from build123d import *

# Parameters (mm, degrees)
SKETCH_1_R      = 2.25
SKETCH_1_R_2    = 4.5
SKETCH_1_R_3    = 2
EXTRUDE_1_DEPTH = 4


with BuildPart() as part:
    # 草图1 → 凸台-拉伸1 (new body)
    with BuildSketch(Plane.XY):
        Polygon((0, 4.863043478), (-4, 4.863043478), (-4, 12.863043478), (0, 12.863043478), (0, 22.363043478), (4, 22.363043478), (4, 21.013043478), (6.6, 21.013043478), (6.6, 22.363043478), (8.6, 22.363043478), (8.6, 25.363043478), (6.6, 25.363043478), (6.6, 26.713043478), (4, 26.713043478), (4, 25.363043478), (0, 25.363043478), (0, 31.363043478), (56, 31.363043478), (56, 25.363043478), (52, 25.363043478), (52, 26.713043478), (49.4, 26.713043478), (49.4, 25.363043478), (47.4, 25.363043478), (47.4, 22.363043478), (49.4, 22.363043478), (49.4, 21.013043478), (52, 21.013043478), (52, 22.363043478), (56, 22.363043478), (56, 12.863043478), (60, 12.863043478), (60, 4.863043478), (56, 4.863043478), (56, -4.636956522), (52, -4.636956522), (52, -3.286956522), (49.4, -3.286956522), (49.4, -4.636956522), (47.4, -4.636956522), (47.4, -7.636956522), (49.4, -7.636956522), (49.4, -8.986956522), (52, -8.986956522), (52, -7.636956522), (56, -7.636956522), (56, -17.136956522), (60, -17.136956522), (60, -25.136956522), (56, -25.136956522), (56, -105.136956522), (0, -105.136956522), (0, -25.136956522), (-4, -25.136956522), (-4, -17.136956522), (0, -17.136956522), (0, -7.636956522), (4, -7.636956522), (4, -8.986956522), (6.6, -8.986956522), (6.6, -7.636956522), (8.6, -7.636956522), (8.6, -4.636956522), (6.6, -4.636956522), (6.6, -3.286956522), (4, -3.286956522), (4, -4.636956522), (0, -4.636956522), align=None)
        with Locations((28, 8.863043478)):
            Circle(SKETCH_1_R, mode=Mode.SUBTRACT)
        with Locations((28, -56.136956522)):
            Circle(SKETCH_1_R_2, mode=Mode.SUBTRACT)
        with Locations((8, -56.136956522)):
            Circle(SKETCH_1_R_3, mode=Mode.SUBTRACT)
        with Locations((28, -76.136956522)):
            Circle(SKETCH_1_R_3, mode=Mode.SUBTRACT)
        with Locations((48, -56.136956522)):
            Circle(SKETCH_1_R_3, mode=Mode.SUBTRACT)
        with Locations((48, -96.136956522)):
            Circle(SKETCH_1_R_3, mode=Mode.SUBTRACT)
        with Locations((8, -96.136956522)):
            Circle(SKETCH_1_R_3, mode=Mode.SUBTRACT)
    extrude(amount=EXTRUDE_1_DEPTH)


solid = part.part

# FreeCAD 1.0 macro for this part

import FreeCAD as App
import Part
import Sketcher

V = App.Vector
Q = App.Units.Quantity

doc = App.newDocument("Part")
body = doc.addObject("PartDesign::Body", "Body")

# Sketch on XY plane
sketch1 = body.newObject("Sketcher::SketchObject", "Sketch")
sketch1.AttachmentSupport = (doc.getObject("XY_Plane"), [""])
sketch1.MapMode = "FlatFace"
sketch1.addGeometry(Part.LineSegment(V(-4, 4.863043, 0), V(0, 4.863043, 0)), False)
sketch1.addGeometry(Part.LineSegment(V(0, 4.863043, 0), V(0, -4.636957, 0)), False)
sketch1.addGeometry(Part.LineSegment(V(0, -4.636957, 0), V(4, -4.636957, 0)), False)
sketch1.addGeometry(Part.LineSegment(V(4, -4.636957, 0), V(4, -3.286957, 0)), False)
sketch1.addGeometry(Part.LineSegment(V(4, -3.286957, 0), V(6.6, -3.286957, 0)), False)
sketch1.addGeometry(Part.LineSegment(V(6.6, -3.286957, 0), V(6.6, -4.636957, 0)), False)
sketch1.addGeometry(Part.LineSegment(V(6.6, -4.636957, 0), V(8.6, -4.636957, 0)), False)
sketch1.addGeometry(Part.LineSegment(V(8.6, -4.636957, 0), V(8.6, -7.636957, 0)), False)
sketch1.addGeometry(Part.LineSegment(V(8.6, -7.636957, 0), V(6.6, -7.636957, 0)), False)
sketch1.addGeometry(Part.LineSegment(V(6.6, -7.636957, 0), V(6.6, -8.986957, 0)), False)
sketch1.addGeometry(Part.LineSegment(V(6.6, -8.986957, 0), V(4, -8.986957, 0)), False)
sketch1.addGeometry(Part.LineSegment(V(4, -8.986957, 0), V(4, -7.636957, 0)), False)
sketch1.addGeometry(Part.LineSegment(V(4, -7.636957, 0), V(0, -7.636957, 0)), False)
sketch1.addGeometry(Part.LineSegment(V(0, -7.636957, 0), V(0, -17.136957, 0)), False)
sketch1.addGeometry(Part.LineSegment(V(0, -17.136957, 0), V(-4, -17.136957, 0)), False)
sketch1.addGeometry(Part.LineSegment(V(-4, -17.136957, 0), V(-4, -25.136957, 0)), False)
sketch1.addGeometry(Part.LineSegment(V(-4, -25.136957, 0), V(0, -25.136957, 0)), False)
sketch1.addGeometry(Part.LineSegment(V(0, -25.136957, 0), V(0, -105.136957, 0)), False)
sketch1.addGeometry(Part.LineSegment(V(0, -105.136957, 0), V(56, -105.136957, 0)), False)
sketch1.addGeometry(Part.LineSegment(V(56, -105.136957, 0), V(56, -25.136957, 0)), False)
sketch1.addGeometry(Part.LineSegment(V(56, -25.136957, 0), V(60, -25.136957, 0)), False)
sketch1.addGeometry(Part.LineSegment(V(60, -25.136957, 0), V(60, -17.136957, 0)), False)
sketch1.addGeometry(Part.LineSegment(V(60, -17.136957, 0), V(56, -17.136957, 0)), False)
sketch1.addGeometry(Part.LineSegment(V(56, -17.136957, 0), V(56, -7.636957, 0)), False)
sketch1.addGeometry(Part.LineSegment(V(56, -7.636957, 0), V(52, -7.636957, 0)), False)
sketch1.addGeometry(Part.LineSegment(V(52, -7.636957, 0), V(52, -8.986957, 0)), False)
sketch1.addGeometry(Part.LineSegment(V(52, -8.986957, 0), V(49.4, -8.986957, 0)), False)
sketch1.addGeometry(Part.LineSegment(V(49.4, -8.986957, 0), V(49.4, -7.636957, 0)), False)
sketch1.addGeometry(Part.LineSegment(V(49.4, -7.636957, 0), V(47.4, -7.636957, 0)), False)
sketch1.addGeometry(Part.LineSegment(V(47.4, -7.636957, 0), V(47.4, -4.636957, 0)), False)
sketch1.addGeometry(Part.LineSegment(V(47.4, -4.636957, 0), V(49.4, -4.636957, 0)), False)
sketch1.addGeometry(Part.LineSegment(V(49.4, -4.636957, 0), V(49.4, -3.286957, 0)), False)
sketch1.addGeometry(Part.LineSegment(V(49.4, -3.286957, 0), V(52, -3.286957, 0)), False)
sketch1.addGeometry(Part.LineSegment(V(52, -3.286957, 0), V(52, -4.636957, 0)), False)
sketch1.addGeometry(Part.LineSegment(V(52, -4.636957, 0), V(56, -4.636957, 0)), False)
sketch1.addGeometry(Part.LineSegment(V(56, -4.636957, 0), V(56, 4.863043, 0)), False)
sketch1.addGeometry(Part.LineSegment(V(56, 4.863043, 0), V(60, 4.863043, 0)), False)
sketch1.addGeometry(Part.LineSegment(V(60, 4.863043, 0), V(60, 12.863043, 0)), False)
sketch1.addGeometry(Part.LineSegment(V(60, 12.863043, 0), V(56, 12.863043, 0)), False)
sketch1.addGeometry(Part.LineSegment(V(56, 12.863043, 0), V(56, 22.363043, 0)), False)
sketch1.addGeometry(Part.LineSegment(V(56, 22.363043, 0), V(52, 22.363043, 0)), False)
sketch1.addGeometry(Part.LineSegment(V(52, 22.363043, 0), V(52, 21.013043, 0)), False)
sketch1.addGeometry(Part.LineSegment(V(52, 21.013043, 0), V(49.4, 21.013043, 0)), False)
sketch1.addGeometry(Part.LineSegment(V(49.4, 21.013043, 0), V(49.4, 22.363043, 0)), False)
sketch1.addGeometry(Part.LineSegment(V(49.4, 22.363043, 0), V(47.4, 22.363043, 0)), False)
sketch1.addGeometry(Part.LineSegment(V(47.4, 22.363043, 0), V(47.4, 25.363043, 0)), False)
sketch1.addGeometry(Part.LineSegment(V(47.4, 25.363043, 0), V(49.4, 25.363043, 0)), False)
sketch1.addGeometry(Part.LineSegment(V(49.4, 25.363043, 0), V(49.4, 26.713043, 0)), False)
sketch1.addGeometry(Part.LineSegment(V(49.4, 26.713043, 0), V(52, 26.713043, 0)), False)
sketch1.addGeometry(Part.LineSegment(V(52, 26.713043, 0), V(52, 25.363043, 0)), False)
sketch1.addGeometry(Part.LineSegment(V(52, 25.363043, 0), V(56, 25.363043, 0)), False)
sketch1.addGeometry(Part.LineSegment(V(56, 25.363043, 0), V(56, 31.363043, 0)), False)
sketch1.addGeometry(Part.LineSegment(V(56, 31.363043, 0), V(0, 31.363043, 0)), False)
sketch1.addGeometry(Part.LineSegment(V(0, 31.363043, 0), V(0, 25.363043, 0)), False)
sketch1.addGeometry(Part.LineSegment(V(0, 25.363043, 0), V(4, 25.363043, 0)), False)
sketch1.addGeometry(Part.LineSegment(V(4, 25.363043, 0), V(4, 26.713043, 0)), False)
sketch1.addGeometry(Part.LineSegment(V(4, 26.713043, 0), V(6.6, 26.713043, 0)), False)
sketch1.addGeometry(Part.LineSegment(V(6.6, 26.713043, 0), V(6.6, 25.363043, 0)), False)
sketch1.addGeometry(Part.LineSegment(V(6.6, 25.363043, 0), V(8.6, 25.363043, 0)), False)
sketch1.addGeometry(Part.LineSegment(V(8.6, 25.363043, 0), V(8.6, 22.363043, 0)), False)
sketch1.addGeometry(Part.LineSegment(V(8.6, 22.363043, 0), V(6.6, 22.363043, 0)), False)
sketch1.addGeometry(Part.LineSegment(V(6.6, 22.363043, 0), V(6.6, 21.013043, 0)), False)
sketch1.addGeometry(Part.LineSegment(V(6.6, 21.013043, 0), V(4, 21.013043, 0)), False)
sketch1.addGeometry(Part.LineSegment(V(4, 21.013043, 0), V(4, 22.363043, 0)), False)
sketch1.addGeometry(Part.LineSegment(V(4, 22.363043, 0), V(0, 22.363043, 0)), False)
sketch1.addGeometry(Part.LineSegment(V(0, 22.363043, 0), V(0, 12.863043, 0)), False)
sketch1.addGeometry(Part.LineSegment(V(0, 12.863043, 0), V(-4, 12.863043, 0)), False)
sketch1.addGeometry(Part.LineSegment(V(-4, 12.863043, 0), V(-4, 4.863043, 0)), False)
sketch1.addGeometry(Part.Circle(V(48, -96.136957, 0), V(0, 0, 1), 2), False)
sketch1.addGeometry(Part.Circle(V(48, -56.136957, 0), V(0, 0, 1), 2), False)
sketch1.addGeometry(Part.Circle(V(28, -76.136957, 0), V(0, 0, 1), 2), False)
sketch1.addGeometry(Part.Circle(V(8, -96.136957, 0), V(0, 0, 1), 2), False)
sketch1.addGeometry(Part.Circle(V(28, -56.136957, 0), V(0, 0, 1), 4.5), False)
sketch1.addGeometry(Part.Circle(V(8, -56.136957, 0), V(0, 0, 1), 2), False)
sketch1.addGeometry(Part.Circle(V(28, 8.863043, 0), V(0, 0, 1), 2.25), False)
sketch1.addConstraint(Sketcher.Constraint("Coincident", 0, 2, 1, 1))
sketch1.addConstraint(Sketcher.Constraint("Coincident", 1, 2, 2, 1))
sketch1.addConstraint(Sketcher.Constraint("Coincident", 2, 2, 3, 1))
sketch1.addConstraint(Sketcher.Constraint("Coincident", 3, 2, 4, 1))
sketch1.addConstraint(Sketcher.Constraint("Coincident", 4, 2, 5, 1))
sketch1.addConstraint(Sketcher.Constraint("Coincident", 5, 2, 6, 1))
sketch1.addConstraint(Sketcher.Constraint("Coincident", 6, 2, 7, 1))
sketch1.addConstraint(Sketcher.Constraint("Coincident", 7, 2, 8, 1))
sketch1.addConstraint(Sketcher.Constraint("Coincident", 8, 2, 9, 1))
sketch1.addConstraint(Sketcher.Constraint("Coincident", 9, 2, 10, 1))
sketch1.addConstraint(Sketcher.Constraint("Coincident", 10, 2, 11, 1))
sketch1.addConstraint(Sketcher.Constraint("Coincident", 11, 2, 12, 1))
sketch1.addConstraint(Sketcher.Constraint("Coincident", 12, 2, 13, 1))
sketch1.addConstraint(Sketcher.Constraint("Coincident", 13, 2, 14, 1))
sketch1.addConstraint(Sketcher.Constraint("Coincident", 14, 2, 15, 1))
sketch1.addConstraint(Sketcher.Constraint("Coincident", 15, 2, 16, 1))
sketch1.addConstraint(Sketcher.Constraint("Coincident", 16, 2, 17, 1))
sketch1.addConstraint(Sketcher.Constraint("Coincident", 17, 2, 18, 1))
sketch1.addConstraint(Sketcher.Constraint("Coincident", 18, 2, 19, 1))
sketch1.addConstraint(Sketcher.Constraint("Coincident", 19, 2, 20, 1))
sketch1.addConstraint(Sketcher.Constraint("Coincident", 20, 2, 21, 1))
sketch1.addConstraint(Sketcher.Constraint("Coincident", 21, 2, 22, 1))
sketch1.addConstraint(Sketcher.Constraint("Coincident", 22, 2, 23, 1))
sketch1.addConstraint(Sketcher.Constraint("Coincident", 23, 2, 24, 1))
sketch1.addConstraint(Sketcher.Constraint("Coincident", 24, 2, 25, 1))
sketch1.addConstraint(Sketcher.Constraint("Coincident", 25, 2, 26, 1))
sketch1.addConstraint(Sketcher.Constraint("Coincident", 26, 2, 27, 1))
sketch1.addConstraint(Sketcher.Constraint("Coincident", 27, 2, 28, 1))
sketch1.addConstraint(Sketcher.Constraint("Coincident", 28, 2, 29, 1))
sketch1.addConstraint(Sketcher.Constraint("Coincident", 29, 2, 30, 1))
sketch1.addConstraint(Sketcher.Constraint("Coincident", 30, 2, 31, 1))
sketch1.addConstraint(Sketcher.Constraint("Coincident", 31, 2, 32, 1))
sketch1.addConstraint(Sketcher.Constraint("Coincident", 32, 2, 33, 1))
sketch1.addConstraint(Sketcher.Constraint("Coincident", 33, 2, 34, 1))
sketch1.addConstraint(Sketcher.Constraint("Coincident", 34, 2, 35, 1))
sketch1.addConstraint(Sketcher.Constraint("Coincident", 35, 2, 36, 1))
sketch1.addConstraint(Sketcher.Constraint("Coincident", 36, 2, 37, 1))
sketch1.addConstraint(Sketcher.Constraint("Coincident", 37, 2, 38, 1))
sketch1.addConstraint(Sketcher.Constraint("Coincident", 38, 2, 39, 1))
sketch1.addConstraint(Sketcher.Constraint("Coincident", 39, 2, 40, 1))
sketch1.addConstraint(Sketcher.Constraint("Coincident", 40, 2, 41, 1))
sketch1.addConstraint(Sketcher.Constraint("Coincident", 41, 2, 42, 1))
sketch1.addConstraint(Sketcher.Constraint("Coincident", 42, 2, 43, 1))
sketch1.addConstraint(Sketcher.Constraint("Coincident", 43, 2, 44, 1))
sketch1.addConstraint(Sketcher.Constraint("Coincident", 44, 2, 45, 1))
sketch1.addConstraint(Sketcher.Constraint("Coincident", 45, 2, 46, 1))
sketch1.addConstraint(Sketcher.Constraint("Coincident", 46, 2, 47, 1))
sketch1.addConstraint(Sketcher.Constraint("Coincident", 47, 2, 48, 1))
sketch1.addConstraint(Sketcher.Constraint("Coincident", 48, 2, 49, 1))
sketch1.addConstraint(Sketcher.Constraint("Coincident", 49, 2, 50, 1))
sketch1.addConstraint(Sketcher.Constraint("Coincident", 50, 2, 51, 1))
sketch1.addConstraint(Sketcher.Constraint("Coincident", 51, 2, 52, 1))
sketch1.addConstraint(Sketcher.Constraint("Coincident", 52, 2, 53, 1))
sketch1.addConstraint(Sketcher.Constraint("Coincident", 53, 2, 54, 1))
sketch1.addConstraint(Sketcher.Constraint("Coincident", 54, 2, 55, 1))
sketch1.addConstraint(Sketcher.Constraint("Coincident", 55, 2, 56, 1))
sketch1.addConstraint(Sketcher.Constraint("Coincident", 56, 2, 57, 1))
sketch1.addConstraint(Sketcher.Constraint("Coincident", 57, 2, 58, 1))
sketch1.addConstraint(Sketcher.Constraint("Coincident", 58, 2, 59, 1))
sketch1.addConstraint(Sketcher.Constraint("Coincident", 59, 2, 60, 1))
sketch1.addConstraint(Sketcher.Constraint("Coincident", 60, 2, 61, 1))
sketch1.addConstraint(Sketcher.Constraint("Coincident", 61, 2, 62, 1))
sketch1.addConstraint(Sketcher.Constraint("Coincident", 62, 2, 63, 1))
sketch1.addConstraint(Sketcher.Constraint("Coincident", 63, 2, 64, 1))
sketch1.addConstraint(Sketcher.Constraint("Coincident", 64, 2, 65, 1))
sketch1.addConstraint(Sketcher.Constraint("Coincident", 65, 2, 66, 1))
sketch1.addConstraint(Sketcher.Constraint("Coincident", 66, 2, 67, 1))
sketch1.addConstraint(Sketcher.Constraint("Coincident", 67, 2, 0, 1))
sketch1.addConstraint(Sketcher.Constraint("Horizontal", 0))
sketch1.addConstraint(Sketcher.Constraint("Vertical", 1))
sketch1.addConstraint(Sketcher.Constraint("Horizontal", 2))
sketch1.addConstraint(Sketcher.Constraint("Vertical", 3))
sketch1.addConstraint(Sketcher.Constraint("Horizontal", 4))
sketch1.addConstraint(Sketcher.Constraint("Vertical", 5))
sketch1.addConstraint(Sketcher.Constraint("Horizontal", 6))
sketch1.addConstraint(Sketcher.Constraint("Vertical", 7))
sketch1.addConstraint(Sketcher.Constraint("Horizontal", 8))
sketch1.addConstraint(Sketcher.Constraint("Vertical", 9))
sketch1.addConstraint(Sketcher.Constraint("Horizontal", 10))
sketch1.addConstraint(Sketcher.Constraint("Vertical", 11))
sketch1.addConstraint(Sketcher.Constraint("Horizontal", 12))
sketch1.addConstraint(Sketcher.Constraint("Vertical", 13))
sketch1.addConstraint(Sketcher.Constraint("Horizontal", 14))
sketch1.addConstraint(Sketcher.Constraint("Vertical", 15))
sketch1.addConstraint(Sketcher.Constraint("Horizontal", 16))
sketch1.addConstraint(Sketcher.Constraint("Vertical", 17))
sketch1.addConstraint(Sketcher.Constraint("Horizontal", 18))
sketch1.addConstraint(Sketcher.Constraint("Vertical", 19))
sketch1.addConstraint(Sketcher.Constraint("Horizontal", 20))
sketch1.addConstraint(Sketcher.Constraint("Vertical", 21))
sketch1.addConstraint(Sketcher.Constraint("Horizontal", 22))
sketch1.addConstraint(Sketcher.Constraint("Vertical", 23))
sketch1.addConstraint(Sketcher.Constraint("Horizontal", 24))
sketch1.addConstraint(Sketcher.Constraint("Vertical", 25))
sketch1.addConstraint(Sketcher.Constraint("Horizontal", 26))
sketch1.addConstraint(Sketcher.Constraint("Vertical", 27))
sketch1.addConstraint(Sketcher.Constraint("Horizontal", 28))
sketch1.addConstraint(Sketcher.Constraint("Vertical", 29))
sketch1.addConstraint(Sketcher.Constraint("Horizontal", 30))
sketch1.addConstraint(Sketcher.Constraint("Vertical", 31))
sketch1.addConstraint(Sketcher.Constraint("Horizontal", 32))
sketch1.addConstraint(Sketcher.Constraint("Vertical", 33))
sketch1.addConstraint(Sketcher.Constraint("Horizontal", 34))
sketch1.addConstraint(Sketcher.Constraint("Vertical", 35))
sketch1.addConstraint(Sketcher.Constraint("Horizontal", 36))
sketch1.addConstraint(Sketcher.Constraint("Vertical", 37))
sketch1.addConstraint(Sketcher.Constraint("Horizontal", 38))
sketch1.addConstraint(Sketcher.Constraint("Vertical", 39))
sketch1.addConstraint(Sketcher.Constraint("Horizontal", 40))
sketch1.addConstraint(Sketcher.Constraint("Vertical", 41))
sketch1.addConstraint(Sketcher.Constraint("Horizontal", 42))
sketch1.addConstraint(Sketcher.Constraint("Vertical", 43))
sketch1.addConstraint(Sketcher.Constraint("Horizontal", 44))
sketch1.addConstraint(Sketcher.Constraint("Vertical", 45))
sketch1.addConstraint(Sketcher.Constraint("Horizontal", 46))
sketch1.addConstraint(Sketcher.Constraint("Vertical", 47))
sketch1.addConstraint(Sketcher.Constraint("Horizontal", 48))
sketch1.addConstraint(Sketcher.Constraint("Vertical", 49))
sketch1.addConstraint(Sketcher.Constraint("Horizontal", 50))
sketch1.addConstraint(Sketcher.Constraint("Vertical", 51))
sketch1.addConstraint(Sketcher.Constraint("Horizontal", 52))
sketch1.addConstraint(Sketcher.Constraint("Vertical", 53))
sketch1.addConstraint(Sketcher.Constraint("Horizontal", 54))
sketch1.addConstraint(Sketcher.Constraint("Vertical", 55))
sketch1.addConstraint(Sketcher.Constraint("Horizontal", 56))
sketch1.addConstraint(Sketcher.Constraint("Vertical", 57))
sketch1.addConstraint(Sketcher.Constraint("Horizontal", 58))
sketch1.addConstraint(Sketcher.Constraint("Vertical", 59))
sketch1.addConstraint(Sketcher.Constraint("Horizontal", 60))
sketch1.addConstraint(Sketcher.Constraint("Vertical", 61))
sketch1.addConstraint(Sketcher.Constraint("Horizontal", 62))
sketch1.addConstraint(Sketcher.Constraint("Vertical", 63))
sketch1.addConstraint(Sketcher.Constraint("Horizontal", 64))
sketch1.addConstraint(Sketcher.Constraint("Vertical", 65))
sketch1.addConstraint(Sketcher.Constraint("Horizontal", 66))
sketch1.addConstraint(Sketcher.Constraint("Vertical", 67))
sketch1.addConstraint(Sketcher.Constraint("Equal", 68, 69))
sketch1.addConstraint(Sketcher.Constraint("Equal", 69, 70))
sketch1.addConstraint(Sketcher.Constraint("Equal", 70, 71))
sketch1.addConstraint(Sketcher.Constraint("Equal", 71, 73))
sketch1.addConstraint(Sketcher.Constraint("PointOnObject", 0, 2, -2))
sketch1.addConstraint(Sketcher.Constraint("PointOnObject", 12, 2, -2))
sketch1.addConstraint(Sketcher.Constraint("PointOnObject", 16, 2, -2))
sketch1.addConstraint(Sketcher.Constraint("PointOnObject", 52, 2, -2))
sketch1.addConstraint(Sketcher.Constraint("PointOnObject", 64, 2, -2))
sketch1.addConstraint(Sketcher.Constraint("Horizontal", 68, 3, 71, 3))
sketch1.addConstraint(Sketcher.Constraint("Horizontal", 69, 3, 72, 3))
sketch1.addConstraint(Sketcher.Constraint("Horizontal", 72, 3, 73, 3))
sketch1.addConstraint(Sketcher.Constraint("Horizontal", 2, 2, 5, 2))
sketch1.addConstraint(Sketcher.Constraint("Horizontal", 8, 2, 11, 2))
sketch1.addConstraint(Sketcher.Constraint("Horizontal", 16, 2, 19, 2))
sketch1.addConstraint(Sketcher.Constraint("Horizontal", 14, 2, 21, 2))
sketch1.addConstraint(Sketcher.Constraint("Horizontal", 12, 2, 23, 2))
sketch1.addConstraint(Sketcher.Constraint("Horizontal", 10, 2, 25, 2))
sketch1.addConstraint(Sketcher.Constraint("Horizontal", 24, 2, 27, 2))
sketch1.addConstraint(Sketcher.Constraint("Horizontal", 6, 2, 29, 2))
sketch1.addConstraint(Sketcher.Constraint("Horizontal", 4, 2, 31, 2))
sketch1.addConstraint(Sketcher.Constraint("Horizontal", 30, 2, 33, 2))
sketch1.addConstraint(Sketcher.Constraint("Horizontal", 0, 2, 35, 2))
sketch1.addConstraint(Sketcher.Constraint("Horizontal", 40, 2, 43, 2))
sketch1.addConstraint(Sketcher.Constraint("Horizontal", 46, 2, 49, 2))
sketch1.addConstraint(Sketcher.Constraint("Horizontal", 50, 2, 53, 2))
sketch1.addConstraint(Sketcher.Constraint("Horizontal", 48, 2, 55, 2))
sketch1.addConstraint(Sketcher.Constraint("Horizontal", 54, 2, 57, 2))
sketch1.addConstraint(Sketcher.Constraint("Horizontal", 44, 2, 59, 2))
sketch1.addConstraint(Sketcher.Constraint("Horizontal", 42, 2, 61, 2))
sketch1.addConstraint(Sketcher.Constraint("Horizontal", 60, 2, 63, 2))
sketch1.addConstraint(Sketcher.Constraint("Horizontal", 38, 2, 65, 2))
sketch1.addConstraint(Sketcher.Constraint("Vertical", 68, 3, 69, 3))
sketch1.addConstraint(Sketcher.Constraint("Vertical", 70, 3, 72, 3))
sketch1.addConstraint(Sketcher.Constraint("Vertical", 71, 3, 73, 3))
sketch1.addConstraint(Sketcher.Constraint("Vertical", 72, 3, 74, 3))
sketch1.addConstraint(Sketcher.Constraint("Vertical", 5, 2, 8, 2))
sketch1.addConstraint(Sketcher.Constraint("Vertical", 3, 2, 10, 2))
sketch1.addConstraint(Sketcher.Constraint("Vertical", 19, 2, 22, 2))
sketch1.addConstraint(Sketcher.Constraint("Vertical", 27, 2, 30, 2))
sketch1.addConstraint(Sketcher.Constraint("Vertical", 25, 2, 32, 2))
sketch1.addConstraint(Sketcher.Constraint("Vertical", 23, 2, 34, 2))
sketch1.addConstraint(Sketcher.Constraint("Vertical", 21, 2, 36, 2))
sketch1.addConstraint(Sketcher.Constraint("Vertical", 35, 2, 38, 2))
sketch1.addConstraint(Sketcher.Constraint("Vertical", 33, 2, 40, 2))
sketch1.addConstraint(Sketcher.Constraint("Vertical", 31, 2, 42, 2))
sketch1.addConstraint(Sketcher.Constraint("Vertical", 29, 2, 44, 2))
sketch1.addConstraint(Sketcher.Constraint("Vertical", 43, 2, 46, 2))
sketch1.addConstraint(Sketcher.Constraint("Vertical", 41, 2, 48, 2))
sketch1.addConstraint(Sketcher.Constraint("Vertical", 39, 2, 50, 2))
sketch1.addConstraint(Sketcher.Constraint("Vertical", 11, 2, 54, 2))
sketch1.addConstraint(Sketcher.Constraint("Vertical", 9, 2, 56, 2))
sketch1.addConstraint(Sketcher.Constraint("Vertical", 7, 2, 58, 2))
sketch1.addConstraint(Sketcher.Constraint("Vertical", 57, 2, 60, 2))
sketch1.addConstraint(Sketcher.Constraint("Vertical", 55, 2, 62, 2))
sketch1.addConstraint(Sketcher.Constraint("Vertical", 15, 2, 66, 2))
sketch1.addConstraint(Sketcher.Constraint("Equal", 0, 2))
sketch1.addConstraint(Sketcher.Constraint("Equal", 16, 20))
sketch1.addConstraint(Sketcher.Constraint("Equal", 22, 24))
sketch1.addConstraint(Sketcher.Constraint("Equal", 10, 26))
sketch1.addConstraint(Sketcher.Constraint("Equal", 8, 28))
sketch1.addConstraint(Sketcher.Constraint("Equal", 5, 9))
sketch1.addConstraint(Sketcher.Constraint("Equal", 1, 13))
sketch1.addConstraint(Sketcher.Constraint("Equal", 21, 37))
sketch1.addConstraint(Sketcher.Constraint("Equal", 35, 39))
sketch1.addConstraint(Sketcher.Constraint("Equal", 33, 41))
sketch1.addConstraint(Sketcher.Constraint("Equal", 29, 45))
sketch1.addConstraint(Sketcher.Constraint("Equal", 43, 47))
sketch1.addConstraint(Sketcher.Constraint("Diameter", 68, Q("4 mm")))
sketch1.addConstraint(Sketcher.Constraint("Diameter", 72, Q("9 mm")))
sketch1.addConstraint(Sketcher.Constraint("Diameter", 74, Q("4.5 mm")))
sketch1.addConstraint(Sketcher.Constraint("DistanceX", 0, 1, 0, 2, Q("4 mm")))
sketch1.addConstraint(Sketcher.Constraint("DistanceX", 6, 1, 6, 2, Q("2 mm")))
sketch1.addConstraint(Sketcher.Constraint("DistanceX", 18, 1, 18, 2, Q("56 mm")))
sketch1.addConstraint(Sketcher.Constraint("DistanceY", 7, 2, 7, 1, Q("3 mm")))
sketch1.addConstraint(Sketcher.Constraint("DistanceY", 15, 2, 15, 1, Q("8 mm")))
sketch1.addConstraint(Sketcher.Constraint("DistanceY", 17, 2, 17, 1, Q("80 mm")))
sketch1.addConstraint(Sketcher.Constraint("DistanceY", 51, 1, 51, 2, Q("6 mm")))
sketch1.addConstraint(Sketcher.Constraint("DistanceX", 4, 1, 4, 2, Q("2.6 mm")))
sketch1.addConstraint(Sketcher.Constraint("DistanceY", 1, 2, 1, 1, Q("9.5 mm")))
sketch1.addConstraint(Sketcher.Constraint("DistanceX", -1, 1, 68, 3, Q("48 mm")))
sketch1.addConstraint(Sketcher.Constraint("DistanceX", -1, 1, 70, 3, Q("28 mm")))
sketch1.addConstraint(Sketcher.Constraint("DistanceX", -1, 1, 71, 3, Q("8 mm")))
sketch1.addConstraint(Sketcher.Constraint("DistanceY", 3, 1, 3, 2, Q("1.35 mm")))
sketch1.addConstraint(Sketcher.Constraint("DistanceY", 68, 3, -1, 1, Q("96.136957 mm")))
sketch1.addConstraint(Sketcher.Constraint("DistanceY", 69, 3, -1, 1, Q("56.136957 mm")))
sketch1.addConstraint(Sketcher.Constraint("DistanceY", 70, 3, -1, 1, Q("76.136957 mm")))
sketch1.addConstraint(Sketcher.Constraint("DistanceY", -1, 1, 74, 3, Q("8.863043 mm")))
sketch1.addConstraint(Sketcher.Constraint("DistanceY", -1, 1, 0, 2, Q("4.863043 mm")))
pad1 = body.newObject("PartDesign::Pad", "Pad")
pad1.Profile = sketch1
pad1.Length = 4

doc.recompute()
